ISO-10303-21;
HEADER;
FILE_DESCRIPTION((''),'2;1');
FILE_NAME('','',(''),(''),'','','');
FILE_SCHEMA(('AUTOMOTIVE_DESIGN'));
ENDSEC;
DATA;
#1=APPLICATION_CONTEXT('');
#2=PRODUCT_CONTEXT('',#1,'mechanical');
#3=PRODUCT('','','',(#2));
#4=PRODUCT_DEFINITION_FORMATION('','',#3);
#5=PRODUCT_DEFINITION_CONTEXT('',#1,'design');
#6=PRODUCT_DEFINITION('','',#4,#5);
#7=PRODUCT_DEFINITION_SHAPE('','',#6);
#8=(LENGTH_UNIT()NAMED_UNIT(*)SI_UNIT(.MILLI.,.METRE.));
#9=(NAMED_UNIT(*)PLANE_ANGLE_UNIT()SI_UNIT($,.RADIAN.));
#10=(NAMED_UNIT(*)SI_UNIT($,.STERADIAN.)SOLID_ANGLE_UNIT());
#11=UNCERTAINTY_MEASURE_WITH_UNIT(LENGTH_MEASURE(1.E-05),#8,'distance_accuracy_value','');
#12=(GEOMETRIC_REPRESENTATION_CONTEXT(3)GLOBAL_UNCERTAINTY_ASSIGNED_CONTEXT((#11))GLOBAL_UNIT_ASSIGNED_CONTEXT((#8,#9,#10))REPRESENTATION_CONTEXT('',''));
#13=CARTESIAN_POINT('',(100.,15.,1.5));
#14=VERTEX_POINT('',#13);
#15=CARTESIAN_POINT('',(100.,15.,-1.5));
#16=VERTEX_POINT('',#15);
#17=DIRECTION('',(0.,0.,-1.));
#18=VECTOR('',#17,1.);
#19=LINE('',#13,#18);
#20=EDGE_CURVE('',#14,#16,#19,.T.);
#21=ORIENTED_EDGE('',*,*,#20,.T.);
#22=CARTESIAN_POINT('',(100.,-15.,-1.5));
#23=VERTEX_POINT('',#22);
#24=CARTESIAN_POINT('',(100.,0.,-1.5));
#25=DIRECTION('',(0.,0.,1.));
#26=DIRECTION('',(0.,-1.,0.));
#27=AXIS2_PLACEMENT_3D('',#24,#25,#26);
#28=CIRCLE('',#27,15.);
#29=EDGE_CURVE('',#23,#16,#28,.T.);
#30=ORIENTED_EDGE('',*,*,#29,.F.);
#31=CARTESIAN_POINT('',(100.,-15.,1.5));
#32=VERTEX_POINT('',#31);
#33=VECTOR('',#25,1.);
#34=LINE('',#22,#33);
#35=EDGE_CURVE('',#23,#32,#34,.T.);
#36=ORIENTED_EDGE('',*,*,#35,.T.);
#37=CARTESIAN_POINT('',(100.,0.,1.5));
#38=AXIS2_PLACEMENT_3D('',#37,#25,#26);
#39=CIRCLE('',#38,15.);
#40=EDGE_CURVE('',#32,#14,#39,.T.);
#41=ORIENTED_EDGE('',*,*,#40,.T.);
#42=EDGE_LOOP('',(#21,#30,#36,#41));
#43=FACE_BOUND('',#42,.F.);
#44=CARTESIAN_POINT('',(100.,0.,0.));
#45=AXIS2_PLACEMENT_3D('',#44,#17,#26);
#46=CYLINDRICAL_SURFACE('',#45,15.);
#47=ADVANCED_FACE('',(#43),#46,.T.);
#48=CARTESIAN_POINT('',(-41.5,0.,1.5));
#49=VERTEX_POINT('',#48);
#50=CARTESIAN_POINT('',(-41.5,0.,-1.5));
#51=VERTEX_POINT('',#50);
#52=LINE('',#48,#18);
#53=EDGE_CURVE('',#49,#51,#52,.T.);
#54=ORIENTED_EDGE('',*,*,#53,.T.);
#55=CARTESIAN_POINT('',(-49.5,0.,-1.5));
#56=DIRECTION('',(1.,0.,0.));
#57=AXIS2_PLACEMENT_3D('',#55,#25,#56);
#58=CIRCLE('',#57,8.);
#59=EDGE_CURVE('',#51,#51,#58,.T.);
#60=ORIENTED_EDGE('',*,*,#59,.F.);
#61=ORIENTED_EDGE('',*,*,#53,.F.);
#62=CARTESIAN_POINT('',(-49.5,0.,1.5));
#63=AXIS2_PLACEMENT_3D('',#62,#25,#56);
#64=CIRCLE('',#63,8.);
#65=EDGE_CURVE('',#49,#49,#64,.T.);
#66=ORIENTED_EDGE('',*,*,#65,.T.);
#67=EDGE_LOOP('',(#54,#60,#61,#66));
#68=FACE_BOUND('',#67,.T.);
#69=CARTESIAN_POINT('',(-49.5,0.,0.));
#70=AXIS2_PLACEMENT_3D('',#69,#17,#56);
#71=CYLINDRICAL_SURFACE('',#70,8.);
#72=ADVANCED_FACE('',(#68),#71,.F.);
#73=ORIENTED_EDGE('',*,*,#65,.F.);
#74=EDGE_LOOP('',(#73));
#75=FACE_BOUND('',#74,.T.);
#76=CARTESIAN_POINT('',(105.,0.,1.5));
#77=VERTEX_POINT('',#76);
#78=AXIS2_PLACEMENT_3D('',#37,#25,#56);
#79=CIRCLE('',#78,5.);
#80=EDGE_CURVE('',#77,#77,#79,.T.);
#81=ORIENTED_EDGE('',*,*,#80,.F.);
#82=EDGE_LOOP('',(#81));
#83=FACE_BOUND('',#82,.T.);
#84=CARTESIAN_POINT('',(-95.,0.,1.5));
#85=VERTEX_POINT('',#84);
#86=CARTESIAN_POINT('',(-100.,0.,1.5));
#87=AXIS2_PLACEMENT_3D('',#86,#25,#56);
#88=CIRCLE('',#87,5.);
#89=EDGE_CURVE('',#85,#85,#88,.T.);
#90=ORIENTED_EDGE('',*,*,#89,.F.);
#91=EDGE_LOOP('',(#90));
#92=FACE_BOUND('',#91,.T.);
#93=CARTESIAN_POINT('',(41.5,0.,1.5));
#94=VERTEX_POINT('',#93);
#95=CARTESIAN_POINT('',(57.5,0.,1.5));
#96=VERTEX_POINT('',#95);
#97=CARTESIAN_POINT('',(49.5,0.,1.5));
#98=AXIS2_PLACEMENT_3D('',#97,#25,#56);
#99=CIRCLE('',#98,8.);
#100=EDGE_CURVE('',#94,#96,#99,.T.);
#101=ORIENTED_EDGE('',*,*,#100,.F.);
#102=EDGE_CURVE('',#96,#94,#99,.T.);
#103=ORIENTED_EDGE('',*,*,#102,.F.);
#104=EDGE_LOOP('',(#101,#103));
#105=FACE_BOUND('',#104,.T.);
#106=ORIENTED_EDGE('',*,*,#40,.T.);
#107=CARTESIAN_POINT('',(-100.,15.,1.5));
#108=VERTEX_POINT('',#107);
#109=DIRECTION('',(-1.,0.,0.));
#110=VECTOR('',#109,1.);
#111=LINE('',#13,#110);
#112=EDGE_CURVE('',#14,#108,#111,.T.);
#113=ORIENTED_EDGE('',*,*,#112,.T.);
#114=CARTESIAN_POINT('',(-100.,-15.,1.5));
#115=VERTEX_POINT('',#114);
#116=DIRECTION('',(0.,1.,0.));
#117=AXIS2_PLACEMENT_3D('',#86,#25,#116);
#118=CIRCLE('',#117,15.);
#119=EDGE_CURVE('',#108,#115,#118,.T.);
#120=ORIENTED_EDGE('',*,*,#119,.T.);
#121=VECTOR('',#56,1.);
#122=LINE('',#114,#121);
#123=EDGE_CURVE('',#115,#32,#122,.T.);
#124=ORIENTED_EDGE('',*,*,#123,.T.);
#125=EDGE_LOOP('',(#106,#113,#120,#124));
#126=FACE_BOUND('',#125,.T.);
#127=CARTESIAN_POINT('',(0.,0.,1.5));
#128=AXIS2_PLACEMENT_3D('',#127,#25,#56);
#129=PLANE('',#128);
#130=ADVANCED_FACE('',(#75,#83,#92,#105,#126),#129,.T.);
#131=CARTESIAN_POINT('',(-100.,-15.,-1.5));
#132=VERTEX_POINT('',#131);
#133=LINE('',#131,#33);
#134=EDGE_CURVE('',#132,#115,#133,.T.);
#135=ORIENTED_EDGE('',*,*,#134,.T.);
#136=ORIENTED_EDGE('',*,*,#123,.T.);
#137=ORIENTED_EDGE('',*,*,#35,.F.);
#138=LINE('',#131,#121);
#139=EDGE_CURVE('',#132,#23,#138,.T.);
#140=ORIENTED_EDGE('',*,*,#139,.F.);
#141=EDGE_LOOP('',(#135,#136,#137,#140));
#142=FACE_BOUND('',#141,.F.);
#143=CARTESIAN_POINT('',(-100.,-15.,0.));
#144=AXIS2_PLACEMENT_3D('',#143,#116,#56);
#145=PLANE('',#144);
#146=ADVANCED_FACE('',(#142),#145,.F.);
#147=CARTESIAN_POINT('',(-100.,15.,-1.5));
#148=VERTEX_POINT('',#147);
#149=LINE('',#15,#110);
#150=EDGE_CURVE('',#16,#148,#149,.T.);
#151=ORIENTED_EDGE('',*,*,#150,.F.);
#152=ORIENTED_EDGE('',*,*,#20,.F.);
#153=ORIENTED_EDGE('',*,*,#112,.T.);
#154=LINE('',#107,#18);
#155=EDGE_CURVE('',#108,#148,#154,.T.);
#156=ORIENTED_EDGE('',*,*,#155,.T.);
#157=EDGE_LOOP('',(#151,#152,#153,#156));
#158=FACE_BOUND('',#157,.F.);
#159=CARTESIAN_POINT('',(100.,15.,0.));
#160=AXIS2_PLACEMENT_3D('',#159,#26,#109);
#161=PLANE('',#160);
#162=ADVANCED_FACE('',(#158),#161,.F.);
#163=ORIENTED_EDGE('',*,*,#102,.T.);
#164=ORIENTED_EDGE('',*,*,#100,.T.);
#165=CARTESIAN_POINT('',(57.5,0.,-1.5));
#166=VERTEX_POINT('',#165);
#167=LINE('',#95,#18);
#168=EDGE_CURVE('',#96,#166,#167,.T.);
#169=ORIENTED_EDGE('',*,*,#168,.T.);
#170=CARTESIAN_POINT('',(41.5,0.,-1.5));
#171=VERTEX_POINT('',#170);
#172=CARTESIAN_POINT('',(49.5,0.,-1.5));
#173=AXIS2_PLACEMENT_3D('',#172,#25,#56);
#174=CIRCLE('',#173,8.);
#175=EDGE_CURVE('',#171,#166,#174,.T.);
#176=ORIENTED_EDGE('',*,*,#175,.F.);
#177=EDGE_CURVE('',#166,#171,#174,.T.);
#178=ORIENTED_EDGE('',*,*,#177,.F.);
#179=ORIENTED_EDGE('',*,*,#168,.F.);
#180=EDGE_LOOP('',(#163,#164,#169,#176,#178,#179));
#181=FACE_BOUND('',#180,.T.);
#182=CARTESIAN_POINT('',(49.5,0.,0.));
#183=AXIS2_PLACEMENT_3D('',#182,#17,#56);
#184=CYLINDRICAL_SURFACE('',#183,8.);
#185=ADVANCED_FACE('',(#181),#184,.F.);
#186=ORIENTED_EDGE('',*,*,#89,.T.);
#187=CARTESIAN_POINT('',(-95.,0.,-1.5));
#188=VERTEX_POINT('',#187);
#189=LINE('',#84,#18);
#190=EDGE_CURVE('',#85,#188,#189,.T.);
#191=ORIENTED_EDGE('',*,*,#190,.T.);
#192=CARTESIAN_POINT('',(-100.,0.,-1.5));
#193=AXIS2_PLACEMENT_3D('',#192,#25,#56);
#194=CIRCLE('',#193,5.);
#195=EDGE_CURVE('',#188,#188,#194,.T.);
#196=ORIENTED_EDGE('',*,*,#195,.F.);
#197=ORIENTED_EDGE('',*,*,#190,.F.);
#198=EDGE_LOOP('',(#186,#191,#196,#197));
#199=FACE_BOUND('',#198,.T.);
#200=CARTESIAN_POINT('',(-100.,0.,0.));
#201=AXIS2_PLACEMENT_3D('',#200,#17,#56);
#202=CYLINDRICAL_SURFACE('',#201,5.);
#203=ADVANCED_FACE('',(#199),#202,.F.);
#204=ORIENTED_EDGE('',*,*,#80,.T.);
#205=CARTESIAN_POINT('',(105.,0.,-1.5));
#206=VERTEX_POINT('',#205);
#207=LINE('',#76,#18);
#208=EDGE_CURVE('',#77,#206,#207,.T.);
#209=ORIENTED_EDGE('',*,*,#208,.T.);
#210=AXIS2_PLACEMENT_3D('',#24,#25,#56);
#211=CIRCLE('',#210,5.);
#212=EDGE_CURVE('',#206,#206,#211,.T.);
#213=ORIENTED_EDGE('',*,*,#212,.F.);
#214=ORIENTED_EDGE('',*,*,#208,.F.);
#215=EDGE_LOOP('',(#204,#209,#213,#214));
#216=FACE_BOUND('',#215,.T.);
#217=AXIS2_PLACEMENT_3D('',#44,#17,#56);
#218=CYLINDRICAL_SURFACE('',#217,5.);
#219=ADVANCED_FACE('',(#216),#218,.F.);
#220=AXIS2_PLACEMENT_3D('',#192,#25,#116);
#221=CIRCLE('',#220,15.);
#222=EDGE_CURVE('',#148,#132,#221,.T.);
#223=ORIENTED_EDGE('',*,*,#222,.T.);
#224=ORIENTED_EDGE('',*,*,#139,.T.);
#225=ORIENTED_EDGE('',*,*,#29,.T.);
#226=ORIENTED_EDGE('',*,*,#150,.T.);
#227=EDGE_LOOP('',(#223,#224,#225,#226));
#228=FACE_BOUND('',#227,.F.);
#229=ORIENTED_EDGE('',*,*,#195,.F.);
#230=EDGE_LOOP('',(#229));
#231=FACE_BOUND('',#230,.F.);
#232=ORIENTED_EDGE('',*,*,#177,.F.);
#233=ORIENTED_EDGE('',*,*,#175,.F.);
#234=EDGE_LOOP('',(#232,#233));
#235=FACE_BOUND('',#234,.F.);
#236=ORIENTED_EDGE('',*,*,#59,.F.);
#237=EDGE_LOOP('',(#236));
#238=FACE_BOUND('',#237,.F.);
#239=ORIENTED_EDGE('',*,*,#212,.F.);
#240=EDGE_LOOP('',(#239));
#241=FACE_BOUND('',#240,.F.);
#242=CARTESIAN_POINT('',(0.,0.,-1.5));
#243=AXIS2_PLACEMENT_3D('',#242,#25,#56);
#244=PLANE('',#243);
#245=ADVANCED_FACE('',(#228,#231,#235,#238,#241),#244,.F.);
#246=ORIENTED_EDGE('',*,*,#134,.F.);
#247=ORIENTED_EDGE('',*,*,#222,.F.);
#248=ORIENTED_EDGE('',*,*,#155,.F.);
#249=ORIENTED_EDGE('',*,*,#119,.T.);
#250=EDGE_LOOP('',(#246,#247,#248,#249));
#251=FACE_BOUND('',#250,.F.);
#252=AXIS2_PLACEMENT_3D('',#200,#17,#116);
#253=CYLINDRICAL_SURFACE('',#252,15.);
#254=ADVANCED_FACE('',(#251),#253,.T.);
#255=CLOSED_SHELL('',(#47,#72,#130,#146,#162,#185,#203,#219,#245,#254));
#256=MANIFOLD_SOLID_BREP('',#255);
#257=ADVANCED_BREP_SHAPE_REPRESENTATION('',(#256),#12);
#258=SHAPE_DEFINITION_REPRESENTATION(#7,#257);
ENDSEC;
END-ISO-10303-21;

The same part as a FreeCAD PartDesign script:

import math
import FreeCAD as App
import Part
import Sketcher

V = App.Vector
Q = App.Units.Quantity

doc = App.newDocument("Part")
body = doc.addObject("PartDesign::Body", "Body")

# Sketch on XY plane
sketch1 = body.newObject("Sketcher::SketchObject", "Sketch")
sketch1.AttachmentSupport = (doc.getObject("XY_Plane"), [""])
sketch1.MapMode = "FlatFace"
sketch1.addGeometry([
    Part.ArcOfCircle(Part.Circle(V(-100, 0, 0), V(0, 0, 1), 15), math.radians(90), math.radians(270)),  # 0
    Part.LineSegment(V(-100, -15, 0), V(100, -15, 0)),  # 1
    Part.ArcOfCircle(Part.Circle(V(100, 0, 0), V(0, 0, 1), 15), math.radians(-90), math.radians(90)),  # 2
    Part.LineSegment(V(100, 15, 0), V(-100, 15, 0)),  # 3
    Part.Circle(V(-100, 0, 0), V(0, 0, 1), 5),  # 4
    Part.Circle(V(-50, 0, 0), V(0, 0, 1), 8),  # 5
    Part.Circle(V(50, 0, 0), V(0, 0, 1), 8),  # 6
    Part.Circle(V(100, 0, 0), V(0, 0, 1), 5),  # 7
], False)
sketch1.addConstraint([
    Sketcher.Constraint("Tangent", 0, 2, 1, 1),
    Sketcher.Constraint("Tangent", 1, 2, 2, 1),
    Sketcher.Constraint("Tangent", 2, 2, 3, 1),
    Sketcher.Constraint("Tangent", 3, 2, 0, 1),
    Sketcher.Constraint("Horizontal", 1),
    Sketcher.Constraint("Horizontal", 3),
    Sketcher.Constraint("Coincident", 4, 3, 0, 3),
    Sketcher.Constraint("Coincident", 7, 3, 2, 3),
    Sketcher.Constraint("Equal", 5, 6),
    Sketcher.Constraint("Equal", 4, 7),
    Sketcher.Constraint("Symmetric", 0, 3, 2, 3, -1, 1),
    Sketcher.Constraint("Symmetric", 5, 3, 6, 3, -1, 1),
    Sketcher.Constraint("PointOnObject", 5, 3, -1),
    Sketcher.Constraint("Diameter", 4, Q("10 mm")),
    Sketcher.Constraint("Diameter", 5, Q("16 mm")),
    Sketcher.Constraint("Radius", 0, Q("15 mm")),
    Sketcher.Constraint("DistanceX", 1, 1, 1, 2, Q("200 mm")),
    Sketcher.Constraint("DistanceX", 5, 3, 6, 3, Q("99 mm")),
])
pad1 = body.newObject("PartDesign::Pad", "Pad")
pad1.Profile = sketch1
pad1.Length = 3
pad1.Midplane = True

doc.recompute()
